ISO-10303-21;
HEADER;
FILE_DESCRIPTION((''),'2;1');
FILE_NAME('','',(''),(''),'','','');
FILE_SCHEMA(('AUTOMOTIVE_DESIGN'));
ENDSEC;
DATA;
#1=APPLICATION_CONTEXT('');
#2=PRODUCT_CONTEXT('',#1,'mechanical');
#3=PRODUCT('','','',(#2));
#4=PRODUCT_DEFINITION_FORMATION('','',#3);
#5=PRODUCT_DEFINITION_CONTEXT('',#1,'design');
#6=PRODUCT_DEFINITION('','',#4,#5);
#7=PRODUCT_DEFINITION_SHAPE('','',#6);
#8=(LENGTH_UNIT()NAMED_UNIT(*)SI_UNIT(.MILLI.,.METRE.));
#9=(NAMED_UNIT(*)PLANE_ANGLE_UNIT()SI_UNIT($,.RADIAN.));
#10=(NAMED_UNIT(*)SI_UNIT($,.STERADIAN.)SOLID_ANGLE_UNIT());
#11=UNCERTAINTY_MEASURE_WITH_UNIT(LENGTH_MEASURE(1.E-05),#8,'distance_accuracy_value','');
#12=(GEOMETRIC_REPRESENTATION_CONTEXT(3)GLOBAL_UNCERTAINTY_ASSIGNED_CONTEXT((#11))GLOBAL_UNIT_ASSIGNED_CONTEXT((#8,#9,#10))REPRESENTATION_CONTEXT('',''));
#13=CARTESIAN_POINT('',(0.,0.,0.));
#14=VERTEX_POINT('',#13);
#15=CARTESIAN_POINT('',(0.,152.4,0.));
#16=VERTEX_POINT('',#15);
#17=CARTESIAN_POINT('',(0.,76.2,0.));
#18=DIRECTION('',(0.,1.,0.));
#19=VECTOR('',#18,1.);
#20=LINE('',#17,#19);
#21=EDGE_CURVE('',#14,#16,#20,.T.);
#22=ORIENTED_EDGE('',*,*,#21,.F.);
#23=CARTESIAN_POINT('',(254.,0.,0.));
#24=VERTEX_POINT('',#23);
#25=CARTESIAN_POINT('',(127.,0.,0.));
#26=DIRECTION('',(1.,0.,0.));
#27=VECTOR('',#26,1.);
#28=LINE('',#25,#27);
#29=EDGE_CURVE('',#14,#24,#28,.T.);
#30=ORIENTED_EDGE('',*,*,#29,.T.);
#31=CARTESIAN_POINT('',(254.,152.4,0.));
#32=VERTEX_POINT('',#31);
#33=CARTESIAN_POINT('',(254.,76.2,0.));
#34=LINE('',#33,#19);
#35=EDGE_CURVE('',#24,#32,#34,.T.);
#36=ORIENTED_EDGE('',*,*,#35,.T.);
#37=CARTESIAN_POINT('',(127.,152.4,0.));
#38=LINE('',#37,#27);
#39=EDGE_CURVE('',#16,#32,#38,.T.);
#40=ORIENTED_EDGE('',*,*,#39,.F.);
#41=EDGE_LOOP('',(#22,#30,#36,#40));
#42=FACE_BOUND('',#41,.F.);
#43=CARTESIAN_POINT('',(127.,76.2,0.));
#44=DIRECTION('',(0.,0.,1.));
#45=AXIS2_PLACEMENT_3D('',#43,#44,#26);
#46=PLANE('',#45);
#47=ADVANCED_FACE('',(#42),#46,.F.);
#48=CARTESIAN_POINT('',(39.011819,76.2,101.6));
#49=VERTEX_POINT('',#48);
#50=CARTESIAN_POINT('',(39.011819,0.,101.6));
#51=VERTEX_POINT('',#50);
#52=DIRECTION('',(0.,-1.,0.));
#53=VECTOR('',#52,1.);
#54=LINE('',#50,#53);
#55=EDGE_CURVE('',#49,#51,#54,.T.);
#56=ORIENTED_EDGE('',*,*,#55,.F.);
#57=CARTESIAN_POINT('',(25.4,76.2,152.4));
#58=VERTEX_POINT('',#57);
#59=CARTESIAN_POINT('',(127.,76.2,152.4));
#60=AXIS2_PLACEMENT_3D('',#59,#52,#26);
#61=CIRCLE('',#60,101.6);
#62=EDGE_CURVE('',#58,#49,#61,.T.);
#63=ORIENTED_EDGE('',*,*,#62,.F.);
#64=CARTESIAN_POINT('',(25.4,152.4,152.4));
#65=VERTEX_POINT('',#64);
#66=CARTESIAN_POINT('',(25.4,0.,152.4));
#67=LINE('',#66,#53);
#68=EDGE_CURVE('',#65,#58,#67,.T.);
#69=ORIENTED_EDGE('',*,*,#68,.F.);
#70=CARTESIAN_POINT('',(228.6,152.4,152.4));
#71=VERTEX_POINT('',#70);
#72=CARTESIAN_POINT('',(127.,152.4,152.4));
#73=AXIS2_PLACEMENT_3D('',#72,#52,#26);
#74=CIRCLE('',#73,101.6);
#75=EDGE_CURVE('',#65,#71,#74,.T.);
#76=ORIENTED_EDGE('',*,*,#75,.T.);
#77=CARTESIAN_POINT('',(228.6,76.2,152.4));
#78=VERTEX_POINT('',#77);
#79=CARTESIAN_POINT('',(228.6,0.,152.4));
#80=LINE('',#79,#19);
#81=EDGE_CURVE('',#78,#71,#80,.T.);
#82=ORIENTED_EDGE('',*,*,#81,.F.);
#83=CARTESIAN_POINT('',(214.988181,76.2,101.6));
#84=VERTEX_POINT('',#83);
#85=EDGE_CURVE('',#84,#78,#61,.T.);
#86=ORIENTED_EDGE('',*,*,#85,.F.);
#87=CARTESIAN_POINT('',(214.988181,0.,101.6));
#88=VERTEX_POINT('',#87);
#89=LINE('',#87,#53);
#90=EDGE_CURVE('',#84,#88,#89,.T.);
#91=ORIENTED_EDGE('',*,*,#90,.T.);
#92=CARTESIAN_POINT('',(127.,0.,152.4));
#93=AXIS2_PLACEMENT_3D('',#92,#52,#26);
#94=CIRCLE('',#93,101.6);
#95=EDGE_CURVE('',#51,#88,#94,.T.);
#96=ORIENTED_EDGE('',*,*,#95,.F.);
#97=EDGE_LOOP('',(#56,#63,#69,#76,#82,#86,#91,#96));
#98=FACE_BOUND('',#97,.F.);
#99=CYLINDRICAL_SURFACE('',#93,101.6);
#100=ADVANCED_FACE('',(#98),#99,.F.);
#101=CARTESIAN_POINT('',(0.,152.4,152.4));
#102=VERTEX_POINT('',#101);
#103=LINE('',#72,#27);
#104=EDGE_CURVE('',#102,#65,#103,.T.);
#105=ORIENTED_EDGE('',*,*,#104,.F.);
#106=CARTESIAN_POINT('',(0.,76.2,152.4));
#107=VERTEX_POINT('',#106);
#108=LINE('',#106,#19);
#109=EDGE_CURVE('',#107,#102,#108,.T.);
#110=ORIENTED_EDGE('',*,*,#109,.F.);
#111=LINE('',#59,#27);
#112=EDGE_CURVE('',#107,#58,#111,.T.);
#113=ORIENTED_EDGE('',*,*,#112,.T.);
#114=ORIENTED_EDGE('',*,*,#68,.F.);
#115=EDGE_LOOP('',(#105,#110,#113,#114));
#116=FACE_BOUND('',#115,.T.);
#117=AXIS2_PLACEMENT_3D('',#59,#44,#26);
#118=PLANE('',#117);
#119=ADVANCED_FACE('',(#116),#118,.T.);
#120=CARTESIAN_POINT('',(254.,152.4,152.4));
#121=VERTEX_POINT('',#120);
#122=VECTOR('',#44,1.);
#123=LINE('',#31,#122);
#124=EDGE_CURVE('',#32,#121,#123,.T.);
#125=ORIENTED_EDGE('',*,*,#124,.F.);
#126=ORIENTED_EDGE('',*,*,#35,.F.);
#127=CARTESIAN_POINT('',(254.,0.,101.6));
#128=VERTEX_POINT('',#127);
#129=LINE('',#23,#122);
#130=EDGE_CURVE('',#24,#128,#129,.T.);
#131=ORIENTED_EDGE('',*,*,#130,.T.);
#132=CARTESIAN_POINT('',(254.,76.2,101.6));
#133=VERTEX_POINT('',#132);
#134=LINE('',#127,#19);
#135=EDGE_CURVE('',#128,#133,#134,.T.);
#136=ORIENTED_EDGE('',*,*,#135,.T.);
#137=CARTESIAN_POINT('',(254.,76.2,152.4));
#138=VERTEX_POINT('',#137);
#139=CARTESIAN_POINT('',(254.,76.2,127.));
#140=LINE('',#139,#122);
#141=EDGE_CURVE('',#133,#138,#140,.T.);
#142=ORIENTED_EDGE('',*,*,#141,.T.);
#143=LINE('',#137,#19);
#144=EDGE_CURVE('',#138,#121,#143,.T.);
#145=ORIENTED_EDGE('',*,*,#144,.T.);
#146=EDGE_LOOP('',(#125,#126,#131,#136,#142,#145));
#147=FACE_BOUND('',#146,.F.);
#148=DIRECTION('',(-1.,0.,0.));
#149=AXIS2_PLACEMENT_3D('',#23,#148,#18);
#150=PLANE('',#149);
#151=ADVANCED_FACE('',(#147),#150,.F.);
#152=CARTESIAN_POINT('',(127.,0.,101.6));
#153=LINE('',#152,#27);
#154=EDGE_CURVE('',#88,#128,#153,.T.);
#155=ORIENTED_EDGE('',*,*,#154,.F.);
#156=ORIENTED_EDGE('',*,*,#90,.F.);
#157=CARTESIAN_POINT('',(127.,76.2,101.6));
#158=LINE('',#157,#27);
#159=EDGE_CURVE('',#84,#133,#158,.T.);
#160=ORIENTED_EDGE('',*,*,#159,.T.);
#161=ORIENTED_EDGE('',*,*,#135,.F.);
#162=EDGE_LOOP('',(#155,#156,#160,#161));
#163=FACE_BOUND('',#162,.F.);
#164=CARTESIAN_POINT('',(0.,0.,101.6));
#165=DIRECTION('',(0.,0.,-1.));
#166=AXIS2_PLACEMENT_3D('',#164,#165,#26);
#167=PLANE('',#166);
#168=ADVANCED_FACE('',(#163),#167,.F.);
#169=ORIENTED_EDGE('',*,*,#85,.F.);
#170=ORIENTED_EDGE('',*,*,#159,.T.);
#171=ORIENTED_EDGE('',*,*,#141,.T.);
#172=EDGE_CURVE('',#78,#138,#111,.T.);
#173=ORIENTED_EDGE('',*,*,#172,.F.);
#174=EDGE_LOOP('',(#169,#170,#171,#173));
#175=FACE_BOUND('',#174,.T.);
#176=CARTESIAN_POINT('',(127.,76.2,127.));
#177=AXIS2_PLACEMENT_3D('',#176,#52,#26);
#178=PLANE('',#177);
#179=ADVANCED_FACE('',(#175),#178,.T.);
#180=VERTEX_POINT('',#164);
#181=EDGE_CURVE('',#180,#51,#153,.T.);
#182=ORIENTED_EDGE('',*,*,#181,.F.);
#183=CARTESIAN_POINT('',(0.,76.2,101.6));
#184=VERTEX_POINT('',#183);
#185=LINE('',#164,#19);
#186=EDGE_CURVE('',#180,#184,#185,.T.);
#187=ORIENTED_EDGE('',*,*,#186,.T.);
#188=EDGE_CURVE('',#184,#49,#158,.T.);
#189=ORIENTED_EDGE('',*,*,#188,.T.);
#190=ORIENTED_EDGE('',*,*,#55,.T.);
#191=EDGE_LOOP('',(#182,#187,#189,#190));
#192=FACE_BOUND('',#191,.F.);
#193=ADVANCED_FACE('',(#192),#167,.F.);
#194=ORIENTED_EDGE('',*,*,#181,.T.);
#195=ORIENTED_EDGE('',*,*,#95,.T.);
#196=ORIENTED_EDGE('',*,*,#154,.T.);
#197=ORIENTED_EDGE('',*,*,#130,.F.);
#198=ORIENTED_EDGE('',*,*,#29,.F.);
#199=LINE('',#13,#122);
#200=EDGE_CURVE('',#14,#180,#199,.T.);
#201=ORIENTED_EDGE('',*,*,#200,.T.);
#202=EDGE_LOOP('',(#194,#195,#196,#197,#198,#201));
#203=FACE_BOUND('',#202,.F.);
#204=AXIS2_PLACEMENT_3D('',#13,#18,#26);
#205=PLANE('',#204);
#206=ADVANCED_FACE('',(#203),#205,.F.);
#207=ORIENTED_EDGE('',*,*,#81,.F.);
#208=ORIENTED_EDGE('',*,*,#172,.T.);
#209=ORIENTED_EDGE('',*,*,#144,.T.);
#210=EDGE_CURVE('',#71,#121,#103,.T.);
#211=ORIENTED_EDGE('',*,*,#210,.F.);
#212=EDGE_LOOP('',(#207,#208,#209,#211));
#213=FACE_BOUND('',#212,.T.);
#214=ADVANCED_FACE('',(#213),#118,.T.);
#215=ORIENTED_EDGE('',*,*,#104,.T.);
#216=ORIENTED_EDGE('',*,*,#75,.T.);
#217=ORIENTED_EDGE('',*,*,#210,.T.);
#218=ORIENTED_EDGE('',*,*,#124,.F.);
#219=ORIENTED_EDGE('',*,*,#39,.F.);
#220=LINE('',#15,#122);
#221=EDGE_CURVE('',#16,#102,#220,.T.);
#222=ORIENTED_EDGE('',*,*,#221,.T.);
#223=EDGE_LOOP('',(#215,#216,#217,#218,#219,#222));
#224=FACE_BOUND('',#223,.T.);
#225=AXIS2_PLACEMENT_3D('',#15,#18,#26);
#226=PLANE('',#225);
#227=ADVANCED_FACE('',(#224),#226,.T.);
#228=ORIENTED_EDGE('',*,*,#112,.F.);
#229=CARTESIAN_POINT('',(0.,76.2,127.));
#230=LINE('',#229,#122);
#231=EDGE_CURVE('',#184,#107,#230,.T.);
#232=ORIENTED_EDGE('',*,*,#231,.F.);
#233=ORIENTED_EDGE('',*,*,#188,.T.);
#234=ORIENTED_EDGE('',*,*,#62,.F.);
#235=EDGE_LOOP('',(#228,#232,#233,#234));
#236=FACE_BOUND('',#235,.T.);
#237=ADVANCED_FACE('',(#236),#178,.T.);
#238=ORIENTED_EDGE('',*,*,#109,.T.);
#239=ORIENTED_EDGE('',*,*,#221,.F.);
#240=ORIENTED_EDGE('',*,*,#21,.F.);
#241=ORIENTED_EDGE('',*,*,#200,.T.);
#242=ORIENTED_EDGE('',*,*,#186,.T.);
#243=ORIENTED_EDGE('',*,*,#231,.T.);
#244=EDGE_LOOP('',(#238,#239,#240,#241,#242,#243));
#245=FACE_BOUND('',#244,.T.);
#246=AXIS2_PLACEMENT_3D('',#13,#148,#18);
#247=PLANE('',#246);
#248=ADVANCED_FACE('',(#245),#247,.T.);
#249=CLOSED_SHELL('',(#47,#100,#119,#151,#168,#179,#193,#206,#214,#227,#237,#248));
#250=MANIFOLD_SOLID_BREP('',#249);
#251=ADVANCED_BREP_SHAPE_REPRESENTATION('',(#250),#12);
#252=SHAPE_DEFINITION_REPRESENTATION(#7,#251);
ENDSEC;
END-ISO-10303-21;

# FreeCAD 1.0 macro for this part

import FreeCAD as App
import Part
import Sketcher

V = App.Vector
Q = App.Units.Quantity

doc = App.newDocument("Part")
body = doc.addObject("PartDesign::Body", "Body")

# Sketch on XY plane
sketch1 = doc.addObject("Sketcher::SketchObject", "Sketch")
body.addObject(sketch1)
sketch1.AttachmentSupport = (doc.XY_Plane, [""])
sketch1.MapMode = "FlatFace"
sketch1.addGeometry([
    Part.LineSegment(V(0, 152, 0), V(0, 0, 0)),
    Part.LineSegment(V(0, 0, 0), V(254, 0, 0)),
    Part.LineSegment(V(254, 0, 0), V(254, 152, 0)),
    Part.LineSegment(V(254, 152, 0), V(0, 152, 0)),
], False)
sketch1.addConstraint([
    Sketcher.Constraint("Coincident", 0, 2, 1, 1),
    Sketcher.Constraint("Coincident", 1, 2, 2, 1),
    Sketcher.Constraint("Coincident", 2, 2, 3, 1),
    Sketcher.Constraint("Coincident", 3, 2, 0, 1),
    Sketcher.Constraint("Vertical", 0),
    Sketcher.Constraint("Horizontal", 1),
    Sketcher.Constraint("Vertical", 2),
    Sketcher.Constraint("Horizontal", 3),
    Sketcher.Constraint("Coincident", 0, 2, -1, 1),
    Sketcher.Constraint("DistanceX", 1, 1, 1, 2, Q("10 in")),
    Sketcher.Constraint("DistanceY", 0, 2, 0, 1, Q("6 in")),
])
pad1 = doc.addObject("PartDesign::Pad", "Pad")
body.addObject(pad1)
pad1.Profile = sketch1
pad1.Length = Q("6 in")

# Sketch on XZ plane
sketch2 = doc.addObject("Sketcher::SketchObject", "Sketch001")
body.addObject(sketch2)
sketch2.AttachmentSupport = (doc.XZ_Plane, [""])
sketch2.MapMode = "FlatFace"
sketch2.addGeometry(Part.Circle(V(127, 152, 0), V(0, 0, 1), 102), False)
sketch2.addConstraint([
    Sketcher.Constraint("Diameter", 0, Q("8 in")),
    Sketcher.Constraint("DistanceX", -1, 1, 0, 3, Q("5 in")),
    Sketcher.Constraint("DistanceY", -1, 1, 0, 3, Q("6 in")),
])
pocket1 = doc.addObject("PartDesign::Pocket", "Pocket")
body.addObject(pocket1)
pocket1.Profile = sketch2
pocket1.Length = Q("6 in")

# Sketch on XZ plane
sketch3 = doc.addObject("Sketcher::SketchObject", "Sketch002")
body.addObject(sketch3)
sketch3.AttachmentSupport = (doc.XZ_Plane, [""])
sketch3.MapMode = "FlatFace"
sketch3.addGeometry([
    Part.LineSegment(V(0, 152, 0), V(0, 102, 0)),
    Part.LineSegment(V(0, 102, 0), V(254, 102, 0)),
    Part.LineSegment(V(254, 102, 0), V(254, 152, 0)),
    Part.LineSegment(V(254, 152, 0), V(0, 152, 0)),
], False)
sketch3.addConstraint([
    Sketcher.Constraint("Coincident", 0, 2, 1, 1),
    Sketcher.Constraint("Coincident", 1, 2, 2, 1),
    Sketcher.Constraint("Coincident", 2, 2, 3, 1),
    Sketcher.Constraint("Coincident", 3, 2, 0, 1),
    Sketcher.Constraint("Vertical", 0),
    Sketcher.Constraint("Horizontal", 1),
    Sketcher.Constraint("Vertical", 2),
    Sketcher.Constraint("Horizontal", 3),
    Sketcher.Constraint("PointOnObject", 0, 2, -2),
    Sketcher.Constraint("DistanceX", 1, 1, 1, 2, Q("10 in")),
    Sketcher.Constraint("DistanceY", 0, 2, 0, 1, Q("2 in")),
    Sketcher.Constraint("DistanceY", -1, 1, 0, 2, Q("4 in")),
])
pocket2 = doc.addObject("PartDesign::Pocket", "Pocket001")
body.addObject(pocket2)
pocket2.Profile = sketch3
pocket2.Length = Q("3 in")

doc.recompute()
